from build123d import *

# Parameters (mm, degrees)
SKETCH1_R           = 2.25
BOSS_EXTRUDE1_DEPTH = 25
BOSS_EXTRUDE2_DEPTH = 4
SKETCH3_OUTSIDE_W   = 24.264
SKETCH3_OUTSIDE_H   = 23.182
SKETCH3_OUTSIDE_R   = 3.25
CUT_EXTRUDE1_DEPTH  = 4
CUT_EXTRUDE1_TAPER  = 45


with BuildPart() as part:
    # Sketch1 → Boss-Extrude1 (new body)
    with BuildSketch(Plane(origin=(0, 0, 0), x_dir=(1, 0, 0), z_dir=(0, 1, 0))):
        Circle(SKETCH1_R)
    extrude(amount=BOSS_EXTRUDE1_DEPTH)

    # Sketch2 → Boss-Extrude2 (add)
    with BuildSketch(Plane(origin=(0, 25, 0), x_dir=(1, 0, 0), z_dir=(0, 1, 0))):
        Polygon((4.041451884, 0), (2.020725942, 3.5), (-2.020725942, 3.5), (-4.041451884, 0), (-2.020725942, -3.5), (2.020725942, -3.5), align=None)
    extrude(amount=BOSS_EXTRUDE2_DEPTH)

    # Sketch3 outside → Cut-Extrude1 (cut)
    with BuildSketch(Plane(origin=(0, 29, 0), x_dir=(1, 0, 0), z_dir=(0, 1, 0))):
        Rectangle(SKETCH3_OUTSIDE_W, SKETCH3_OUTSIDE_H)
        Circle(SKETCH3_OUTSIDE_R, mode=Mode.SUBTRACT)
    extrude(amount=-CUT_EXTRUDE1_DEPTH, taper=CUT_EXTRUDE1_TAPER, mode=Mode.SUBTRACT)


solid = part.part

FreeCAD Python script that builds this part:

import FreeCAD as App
import Part
import Sketcher
from FreeCAD import Vector
Q = App.Units.Quantity


def add_polygon(sketch, points):
    """Adds a closed chain of lines whose ends are joined by coincident constraints."""
    first, n = sketch.GeometryCount, len(points)
    for a, b in zip(points, points[1:] + points[:1]):
        sketch.addGeometry(Part.LineSegment(App.Vector(*a, 0), App.Vector(*b, 0)), False)
    for i in range(n):
        sketch.addConstraint(Sketcher.Constraint("Coincident", first + i, 2, first + (i + 1) % n, 1))

doc = App.newDocument("Part")
body = doc.addObject("PartDesign::Body", "Body")

# Sketch on XZ plane
sketch1 = body.newObject("Sketcher::SketchObject", "Sketch")
sketch1.AttachmentSupport = (doc.getObject("XZ_Plane"), [""])
sketch1.MapMode = "FlatFace"
sketch1.addGeometry(Part.Circle(Vector(0, 0, 0), Vector(0, 0, 1), 2.2), False)
sketch1.addConstraint(Sketcher.Constraint("Coincident", 0, 3, -1, 1))
sketch1.addConstraint(Sketcher.Constraint("Diameter", 0, Q("4.5 mm")))
pad1 = body.newObject("PartDesign::Pad", "Pad")
pad1.Profile = sketch1
pad1.Length = 25
pad1.Reversed = True

# Sketch on XZ plane
sketch2 = body.newObject("Sketcher::SketchObject", "Sketch001")
sketch2.AttachmentSupport = (doc.getObject("XZ_Plane"), [""])
sketch2.MapMode = "FlatFace"
sketch2.AttachmentOffset = App.Placement(Vector(0, 0, -25), App.Rotation())
add_polygon(sketch2, [(4, 0), (2, -3.5), (-2, -3.5), (-4, 0), (-2, 3.5), (2, 3.5)])  # lines 0-5
sketch2.addConstraint(Sketcher.Constraint("Horizontal", 1))
sketch2.addConstraint(Sketcher.Constraint("Horizontal", 4))
sketch2.addConstraint(Sketcher.Constraint("Symmetric", 0, 2, 3, 2, -1, 1))
sketch2.addConstraint(Sketcher.Constraint("Symmetric", 2, 2, 5, 2, -1, 1))
sketch2.addConstraint(Sketcher.Constraint("PointOnObject", 2, 2, -1))
sketch2.addConstraint(Sketcher.Constraint("Parallel", 2, 5))
sketch2.addConstraint(Sketcher.Constraint("Vertical", 1, 2, 3, 2))
sketch2.addConstraint(Sketcher.Constraint("Angle", 0, Q("-120 deg")))
sketch2.addConstraint(Sketcher.Constraint("DistanceY", 1, 2, 3, 2, Q("7 mm")))
sketch2.addConstraint(Sketcher.Constraint("DistanceX", 1, 2, 1, 1, Q("4.041452 mm")))
pad2 = body.newObject("PartDesign::Pad", "Pad001")
pad2.Profile = sketch2
pad2.Length = 4
pad2.Reversed = True

# Sketch on XZ plane
sketch3 = body.newObject("Sketcher::SketchObject", "Sketch002")
sketch3.AttachmentSupport = (doc.getObject("XZ_Plane"), [""])
sketch3.MapMode = "FlatFace"
sketch3.AttachmentOffset = App.Placement(Vector(0, 0, -29), App.Rotation())
add_polygon(sketch3, [(-12.1, -11.6), (-12.1, 11.6), (12.1, 11.6), (12.1, -11.6)])  # lines 0-3
sketch3.addGeometry(Part.Circle(Vector(0, 0, 0), Vector(0, 0, 1), 3.2), False)  # 4
sketch3.addConstraint(Sketcher.Constraint("Vertical", 0))
sketch3.addConstraint(Sketcher.Constraint("Horizontal", 1))
sketch3.addConstraint(Sketcher.Constraint("Vertical", 2))
sketch3.addConstraint(Sketcher.Constraint("Horizontal", 3))
sketch3.addConstraint(Sketcher.Constraint("Coincident", 4, 3, -1, 1))
sketch3.addConstraint(Sketcher.Constraint("Symmetric", 0, 2, 2, 2, -1, 1))
sketch3.addConstraint(Sketcher.Constraint("Diameter", 4, Q("6.5 mm")))
sketch3.addConstraint(Sketcher.Constraint("DistanceX", 1, 1, 1, 2, Q("24.264 mm")))
sketch3.addConstraint(Sketcher.Constraint("DistanceY", 0, 1, 0, 2, Q("23.182 mm")))
pocket1 = body.newObject("PartDesign::Pocket", "Pocket")
pocket1.Profile = sketch3
pocket1.Length = 4
pocket1.Reversed = True
pocket1.TaperAngle = 45

doc.recompute()
